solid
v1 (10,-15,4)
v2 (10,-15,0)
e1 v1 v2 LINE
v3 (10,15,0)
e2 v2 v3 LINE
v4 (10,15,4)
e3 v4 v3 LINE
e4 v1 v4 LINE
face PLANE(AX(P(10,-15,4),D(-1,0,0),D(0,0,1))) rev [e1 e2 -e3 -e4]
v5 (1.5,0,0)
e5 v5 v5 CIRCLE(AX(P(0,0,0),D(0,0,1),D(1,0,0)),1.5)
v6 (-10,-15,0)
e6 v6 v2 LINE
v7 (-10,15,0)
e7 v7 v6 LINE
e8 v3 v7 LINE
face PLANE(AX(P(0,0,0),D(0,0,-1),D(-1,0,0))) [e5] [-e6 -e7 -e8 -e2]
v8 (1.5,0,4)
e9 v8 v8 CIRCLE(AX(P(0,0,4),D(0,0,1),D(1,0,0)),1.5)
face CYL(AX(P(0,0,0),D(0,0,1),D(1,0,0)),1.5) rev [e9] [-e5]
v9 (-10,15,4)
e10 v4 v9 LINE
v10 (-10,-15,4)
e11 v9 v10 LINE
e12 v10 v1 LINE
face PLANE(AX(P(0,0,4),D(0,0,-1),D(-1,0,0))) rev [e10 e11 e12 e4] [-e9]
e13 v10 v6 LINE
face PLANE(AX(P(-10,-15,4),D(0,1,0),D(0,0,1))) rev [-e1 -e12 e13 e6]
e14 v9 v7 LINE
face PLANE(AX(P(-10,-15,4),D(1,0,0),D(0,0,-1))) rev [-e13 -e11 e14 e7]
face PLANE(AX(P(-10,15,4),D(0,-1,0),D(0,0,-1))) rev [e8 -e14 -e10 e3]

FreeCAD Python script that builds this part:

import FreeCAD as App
import Part
import Sketcher

V = App.Vector
Q = App.Units.Quantity

doc = App.newDocument("Part")
body = doc.addObject("PartDesign::Body", "Body")

sketch1 = doc.addObject("Sketcher::SketchObject", "Sketch")
body.addObject(sketch1)
sketch1.AttachmentSupport = (doc.XY_Plane, [""])
sketch1.MapMode = "FlatFace"
sketch1.addGeometry([
    Part.LineSegment(V(-10, 15, 0), V(-10, -15, 0)),
    Part.LineSegment(V(-10, -15, 0), V(10, -15, 0)),
    Part.LineSegment(V(10, -15, 0), V(10, 15, 0)),
    Part.LineSegment(V(10, 15, 0), V(-10, 15, 0)),
], False)
sketch1.addConstraint([
    Sketcher.Constraint("Coincident", 0, 2, 1, 1),
    Sketcher.Constraint("Coincident", 1, 2, 2, 1),
    Sketcher.Constraint("Coincident", 2, 2, 3, 1),
    Sketcher.Constraint("Coincident", 3, 2, 0, 1),
    Sketcher.Constraint("Vertical", 0),
    Sketcher.Constraint("Horizontal", 1),
    Sketcher.Constraint("Vertical", 2),
    Sketcher.Constraint("Horizontal", 3),
    Sketcher.Constraint("Symmetric", 0, 2, 2, 2, -1, 1),
    Sketcher.Constraint("DistanceX", 1, 1, 1, 2, Q("20 mm")),
    Sketcher.Constraint("DistanceY", 0, 2, 0, 1, Q("30 mm")),
])
pad1 = doc.addObject("PartDesign::Pad", "Pad")
body.addObject(pad1)
pad1.Profile = sketch1
pad1.Length = 4

sketch2 = doc.addObject("Sketcher::SketchObject", "Sketch001")
body.addObject(sketch2)
sketch2.AttachmentSupport = (doc.XY_Plane, [""])
sketch2.MapMode = "FlatFace"
sketch2.AttachmentOffset = App.Placement(V(0, 0, 4), App.Rotation())
sketch2.addGeometry(Part.Circle(V(0, 0, 0), V(0, 0, 1), 1.5), False)
sketch2.addConstraint([
    Sketcher.Constraint("Coincident", 0, 3, -1, 1),
    Sketcher.Constraint("Diameter", 0, Q("3 mm")),
])
pocket1 = doc.addObject("PartDesign::Pocket", "Pocket")
body.addObject(pocket1)
pocket1.Profile = sketch2
pocket1.Type = "ThroughAll"

doc.recompute()
